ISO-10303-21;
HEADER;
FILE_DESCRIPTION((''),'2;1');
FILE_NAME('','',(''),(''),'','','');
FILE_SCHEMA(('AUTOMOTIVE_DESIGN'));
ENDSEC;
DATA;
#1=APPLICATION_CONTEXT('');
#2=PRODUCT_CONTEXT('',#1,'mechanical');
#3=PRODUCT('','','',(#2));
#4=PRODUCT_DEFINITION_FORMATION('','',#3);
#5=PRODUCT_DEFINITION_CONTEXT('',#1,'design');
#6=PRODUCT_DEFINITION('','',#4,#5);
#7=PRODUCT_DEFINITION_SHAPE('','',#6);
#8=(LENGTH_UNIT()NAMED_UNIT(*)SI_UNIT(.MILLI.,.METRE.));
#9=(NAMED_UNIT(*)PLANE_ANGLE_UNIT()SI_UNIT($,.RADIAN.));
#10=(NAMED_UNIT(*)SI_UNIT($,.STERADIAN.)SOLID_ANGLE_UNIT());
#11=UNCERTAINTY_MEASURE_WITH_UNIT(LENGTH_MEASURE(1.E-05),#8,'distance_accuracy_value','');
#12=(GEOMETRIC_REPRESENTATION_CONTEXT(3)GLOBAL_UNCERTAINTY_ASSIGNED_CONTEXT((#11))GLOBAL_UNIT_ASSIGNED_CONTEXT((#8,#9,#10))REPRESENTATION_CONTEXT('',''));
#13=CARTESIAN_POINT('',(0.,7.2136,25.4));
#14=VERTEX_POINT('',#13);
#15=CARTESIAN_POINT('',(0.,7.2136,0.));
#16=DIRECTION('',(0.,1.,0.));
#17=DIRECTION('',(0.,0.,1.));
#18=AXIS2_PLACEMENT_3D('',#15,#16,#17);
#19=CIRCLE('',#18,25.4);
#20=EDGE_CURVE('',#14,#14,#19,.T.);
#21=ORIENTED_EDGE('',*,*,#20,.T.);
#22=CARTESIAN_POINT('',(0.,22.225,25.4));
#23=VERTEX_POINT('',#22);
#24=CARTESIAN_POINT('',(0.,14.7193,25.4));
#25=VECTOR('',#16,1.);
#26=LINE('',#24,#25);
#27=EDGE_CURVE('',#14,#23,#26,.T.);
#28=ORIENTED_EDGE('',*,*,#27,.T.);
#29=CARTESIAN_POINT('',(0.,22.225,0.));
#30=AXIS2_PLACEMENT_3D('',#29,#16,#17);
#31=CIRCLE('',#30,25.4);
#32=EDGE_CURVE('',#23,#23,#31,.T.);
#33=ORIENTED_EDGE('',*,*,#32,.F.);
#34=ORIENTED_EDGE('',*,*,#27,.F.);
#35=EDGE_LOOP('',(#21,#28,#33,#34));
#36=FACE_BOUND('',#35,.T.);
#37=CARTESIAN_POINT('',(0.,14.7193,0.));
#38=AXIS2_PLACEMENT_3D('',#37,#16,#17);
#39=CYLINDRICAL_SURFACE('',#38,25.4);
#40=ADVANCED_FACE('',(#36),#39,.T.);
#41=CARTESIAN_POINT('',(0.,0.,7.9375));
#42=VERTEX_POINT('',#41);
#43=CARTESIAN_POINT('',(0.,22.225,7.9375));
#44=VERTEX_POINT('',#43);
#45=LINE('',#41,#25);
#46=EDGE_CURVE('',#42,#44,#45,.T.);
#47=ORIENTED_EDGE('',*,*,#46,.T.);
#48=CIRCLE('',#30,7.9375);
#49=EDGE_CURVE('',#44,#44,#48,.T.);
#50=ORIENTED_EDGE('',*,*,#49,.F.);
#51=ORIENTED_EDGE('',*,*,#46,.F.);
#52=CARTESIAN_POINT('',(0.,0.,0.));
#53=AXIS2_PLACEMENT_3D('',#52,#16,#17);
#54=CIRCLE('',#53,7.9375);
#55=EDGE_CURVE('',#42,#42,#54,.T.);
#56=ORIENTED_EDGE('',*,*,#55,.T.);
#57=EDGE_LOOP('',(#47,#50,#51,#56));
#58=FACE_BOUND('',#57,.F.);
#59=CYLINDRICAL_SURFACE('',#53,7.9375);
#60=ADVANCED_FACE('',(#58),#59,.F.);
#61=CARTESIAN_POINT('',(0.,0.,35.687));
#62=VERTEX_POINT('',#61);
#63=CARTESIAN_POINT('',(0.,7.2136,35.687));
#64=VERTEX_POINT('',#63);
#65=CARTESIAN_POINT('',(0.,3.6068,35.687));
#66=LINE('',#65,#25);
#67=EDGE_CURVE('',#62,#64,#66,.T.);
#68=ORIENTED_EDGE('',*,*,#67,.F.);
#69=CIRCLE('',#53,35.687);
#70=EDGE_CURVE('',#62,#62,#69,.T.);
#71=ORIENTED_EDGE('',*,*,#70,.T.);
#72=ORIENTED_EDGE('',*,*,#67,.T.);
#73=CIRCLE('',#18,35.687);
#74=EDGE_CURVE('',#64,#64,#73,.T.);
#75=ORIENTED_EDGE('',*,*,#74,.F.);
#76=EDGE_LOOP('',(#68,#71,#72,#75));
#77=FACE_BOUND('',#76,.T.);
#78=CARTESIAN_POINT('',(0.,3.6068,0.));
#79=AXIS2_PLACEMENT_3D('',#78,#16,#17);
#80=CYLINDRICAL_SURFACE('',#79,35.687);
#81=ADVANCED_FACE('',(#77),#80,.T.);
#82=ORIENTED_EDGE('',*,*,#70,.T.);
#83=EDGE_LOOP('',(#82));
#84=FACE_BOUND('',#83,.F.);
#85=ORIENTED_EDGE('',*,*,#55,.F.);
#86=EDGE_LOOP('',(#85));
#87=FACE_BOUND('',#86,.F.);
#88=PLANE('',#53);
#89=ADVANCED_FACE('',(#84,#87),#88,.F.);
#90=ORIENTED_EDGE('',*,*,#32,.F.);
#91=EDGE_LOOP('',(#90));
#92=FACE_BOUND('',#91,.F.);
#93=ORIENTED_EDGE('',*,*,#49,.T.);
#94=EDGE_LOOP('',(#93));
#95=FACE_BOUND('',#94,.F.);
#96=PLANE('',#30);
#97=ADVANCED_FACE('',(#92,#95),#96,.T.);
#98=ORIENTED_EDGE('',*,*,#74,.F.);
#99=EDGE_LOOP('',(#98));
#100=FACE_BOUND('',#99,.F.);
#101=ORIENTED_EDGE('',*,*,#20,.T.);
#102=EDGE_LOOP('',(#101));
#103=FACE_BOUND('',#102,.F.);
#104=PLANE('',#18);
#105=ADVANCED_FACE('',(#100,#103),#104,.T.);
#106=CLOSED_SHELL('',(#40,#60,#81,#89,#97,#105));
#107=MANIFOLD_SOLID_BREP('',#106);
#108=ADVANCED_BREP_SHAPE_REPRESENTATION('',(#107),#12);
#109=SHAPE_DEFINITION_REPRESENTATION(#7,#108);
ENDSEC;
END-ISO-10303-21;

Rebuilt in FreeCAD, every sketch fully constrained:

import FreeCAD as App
import Part
import Sketcher
Q = App.Units.Quantity


def add_polygon(sketch, points):
    """Adds a closed chain of lines whose ends are joined by coincident constraints."""
    first, n = sketch.GeometryCount, len(points)
    for a, b in zip(points, points[1:] + points[:1]):
        sketch.addGeometry(Part.LineSegment(App.Vector(*a, 0), App.Vector(*b, 0)), False)
    for i in range(n):
        sketch.addConstraint(Sketcher.Constraint("Coincident", first + i, 2, first + (i + 1) % n, 1))

doc = App.newDocument("Part")
body = doc.addObject("PartDesign::Body", "Body")

# Sketch on YZ plane
sketch1 = doc.addObject("Sketcher::SketchObject", "Sketch")
body.addObject(sketch1)
sketch1.AttachmentSupport = (doc.YZ_Plane, [""])
sketch1.MapMode = "FlatFace"
add_polygon(sketch1, [(0, 36), (0, 8), (22, 8), (22, 25), (7, 25), (7, 36)])  # lines 0-5
sketch1.addConstraint([
    Sketcher.Constraint("Vertical", 0),
    Sketcher.Constraint("Horizontal", 1),
    Sketcher.Constraint("Vertical", 2),
    Sketcher.Constraint("Horizontal", 3),
    Sketcher.Constraint("Vertical", 4),
    Sketcher.Constraint("Horizontal", 5),
    Sketcher.Constraint("PointOnObject", 0, 2, -2),
    Sketcher.Constraint("DistanceY", -1, 1, 2, 2, Q("1 in")),
    Sketcher.Constraint("DistanceX", 1, 1, 1, 2, Q("0.875 in")),
    Sketcher.Constraint("DistanceX", 3, 2, 3, 1, Q("0.591 in")),
    Sketcher.Constraint("DistanceY", 2, 1, 2, 2, Q("0.6875 in")),
    Sketcher.Constraint("DistanceY", 4, 1, 4, 2, Q("0.405 in")),
])
revolution = doc.addObject("PartDesign::Revolution", "Revolution")
body.addObject(revolution)
revolution.Profile = sketch1
revolution.ReferenceAxis = (sketch1, ["H_Axis"])
revolution.Angle = 360

doc.recompute()
